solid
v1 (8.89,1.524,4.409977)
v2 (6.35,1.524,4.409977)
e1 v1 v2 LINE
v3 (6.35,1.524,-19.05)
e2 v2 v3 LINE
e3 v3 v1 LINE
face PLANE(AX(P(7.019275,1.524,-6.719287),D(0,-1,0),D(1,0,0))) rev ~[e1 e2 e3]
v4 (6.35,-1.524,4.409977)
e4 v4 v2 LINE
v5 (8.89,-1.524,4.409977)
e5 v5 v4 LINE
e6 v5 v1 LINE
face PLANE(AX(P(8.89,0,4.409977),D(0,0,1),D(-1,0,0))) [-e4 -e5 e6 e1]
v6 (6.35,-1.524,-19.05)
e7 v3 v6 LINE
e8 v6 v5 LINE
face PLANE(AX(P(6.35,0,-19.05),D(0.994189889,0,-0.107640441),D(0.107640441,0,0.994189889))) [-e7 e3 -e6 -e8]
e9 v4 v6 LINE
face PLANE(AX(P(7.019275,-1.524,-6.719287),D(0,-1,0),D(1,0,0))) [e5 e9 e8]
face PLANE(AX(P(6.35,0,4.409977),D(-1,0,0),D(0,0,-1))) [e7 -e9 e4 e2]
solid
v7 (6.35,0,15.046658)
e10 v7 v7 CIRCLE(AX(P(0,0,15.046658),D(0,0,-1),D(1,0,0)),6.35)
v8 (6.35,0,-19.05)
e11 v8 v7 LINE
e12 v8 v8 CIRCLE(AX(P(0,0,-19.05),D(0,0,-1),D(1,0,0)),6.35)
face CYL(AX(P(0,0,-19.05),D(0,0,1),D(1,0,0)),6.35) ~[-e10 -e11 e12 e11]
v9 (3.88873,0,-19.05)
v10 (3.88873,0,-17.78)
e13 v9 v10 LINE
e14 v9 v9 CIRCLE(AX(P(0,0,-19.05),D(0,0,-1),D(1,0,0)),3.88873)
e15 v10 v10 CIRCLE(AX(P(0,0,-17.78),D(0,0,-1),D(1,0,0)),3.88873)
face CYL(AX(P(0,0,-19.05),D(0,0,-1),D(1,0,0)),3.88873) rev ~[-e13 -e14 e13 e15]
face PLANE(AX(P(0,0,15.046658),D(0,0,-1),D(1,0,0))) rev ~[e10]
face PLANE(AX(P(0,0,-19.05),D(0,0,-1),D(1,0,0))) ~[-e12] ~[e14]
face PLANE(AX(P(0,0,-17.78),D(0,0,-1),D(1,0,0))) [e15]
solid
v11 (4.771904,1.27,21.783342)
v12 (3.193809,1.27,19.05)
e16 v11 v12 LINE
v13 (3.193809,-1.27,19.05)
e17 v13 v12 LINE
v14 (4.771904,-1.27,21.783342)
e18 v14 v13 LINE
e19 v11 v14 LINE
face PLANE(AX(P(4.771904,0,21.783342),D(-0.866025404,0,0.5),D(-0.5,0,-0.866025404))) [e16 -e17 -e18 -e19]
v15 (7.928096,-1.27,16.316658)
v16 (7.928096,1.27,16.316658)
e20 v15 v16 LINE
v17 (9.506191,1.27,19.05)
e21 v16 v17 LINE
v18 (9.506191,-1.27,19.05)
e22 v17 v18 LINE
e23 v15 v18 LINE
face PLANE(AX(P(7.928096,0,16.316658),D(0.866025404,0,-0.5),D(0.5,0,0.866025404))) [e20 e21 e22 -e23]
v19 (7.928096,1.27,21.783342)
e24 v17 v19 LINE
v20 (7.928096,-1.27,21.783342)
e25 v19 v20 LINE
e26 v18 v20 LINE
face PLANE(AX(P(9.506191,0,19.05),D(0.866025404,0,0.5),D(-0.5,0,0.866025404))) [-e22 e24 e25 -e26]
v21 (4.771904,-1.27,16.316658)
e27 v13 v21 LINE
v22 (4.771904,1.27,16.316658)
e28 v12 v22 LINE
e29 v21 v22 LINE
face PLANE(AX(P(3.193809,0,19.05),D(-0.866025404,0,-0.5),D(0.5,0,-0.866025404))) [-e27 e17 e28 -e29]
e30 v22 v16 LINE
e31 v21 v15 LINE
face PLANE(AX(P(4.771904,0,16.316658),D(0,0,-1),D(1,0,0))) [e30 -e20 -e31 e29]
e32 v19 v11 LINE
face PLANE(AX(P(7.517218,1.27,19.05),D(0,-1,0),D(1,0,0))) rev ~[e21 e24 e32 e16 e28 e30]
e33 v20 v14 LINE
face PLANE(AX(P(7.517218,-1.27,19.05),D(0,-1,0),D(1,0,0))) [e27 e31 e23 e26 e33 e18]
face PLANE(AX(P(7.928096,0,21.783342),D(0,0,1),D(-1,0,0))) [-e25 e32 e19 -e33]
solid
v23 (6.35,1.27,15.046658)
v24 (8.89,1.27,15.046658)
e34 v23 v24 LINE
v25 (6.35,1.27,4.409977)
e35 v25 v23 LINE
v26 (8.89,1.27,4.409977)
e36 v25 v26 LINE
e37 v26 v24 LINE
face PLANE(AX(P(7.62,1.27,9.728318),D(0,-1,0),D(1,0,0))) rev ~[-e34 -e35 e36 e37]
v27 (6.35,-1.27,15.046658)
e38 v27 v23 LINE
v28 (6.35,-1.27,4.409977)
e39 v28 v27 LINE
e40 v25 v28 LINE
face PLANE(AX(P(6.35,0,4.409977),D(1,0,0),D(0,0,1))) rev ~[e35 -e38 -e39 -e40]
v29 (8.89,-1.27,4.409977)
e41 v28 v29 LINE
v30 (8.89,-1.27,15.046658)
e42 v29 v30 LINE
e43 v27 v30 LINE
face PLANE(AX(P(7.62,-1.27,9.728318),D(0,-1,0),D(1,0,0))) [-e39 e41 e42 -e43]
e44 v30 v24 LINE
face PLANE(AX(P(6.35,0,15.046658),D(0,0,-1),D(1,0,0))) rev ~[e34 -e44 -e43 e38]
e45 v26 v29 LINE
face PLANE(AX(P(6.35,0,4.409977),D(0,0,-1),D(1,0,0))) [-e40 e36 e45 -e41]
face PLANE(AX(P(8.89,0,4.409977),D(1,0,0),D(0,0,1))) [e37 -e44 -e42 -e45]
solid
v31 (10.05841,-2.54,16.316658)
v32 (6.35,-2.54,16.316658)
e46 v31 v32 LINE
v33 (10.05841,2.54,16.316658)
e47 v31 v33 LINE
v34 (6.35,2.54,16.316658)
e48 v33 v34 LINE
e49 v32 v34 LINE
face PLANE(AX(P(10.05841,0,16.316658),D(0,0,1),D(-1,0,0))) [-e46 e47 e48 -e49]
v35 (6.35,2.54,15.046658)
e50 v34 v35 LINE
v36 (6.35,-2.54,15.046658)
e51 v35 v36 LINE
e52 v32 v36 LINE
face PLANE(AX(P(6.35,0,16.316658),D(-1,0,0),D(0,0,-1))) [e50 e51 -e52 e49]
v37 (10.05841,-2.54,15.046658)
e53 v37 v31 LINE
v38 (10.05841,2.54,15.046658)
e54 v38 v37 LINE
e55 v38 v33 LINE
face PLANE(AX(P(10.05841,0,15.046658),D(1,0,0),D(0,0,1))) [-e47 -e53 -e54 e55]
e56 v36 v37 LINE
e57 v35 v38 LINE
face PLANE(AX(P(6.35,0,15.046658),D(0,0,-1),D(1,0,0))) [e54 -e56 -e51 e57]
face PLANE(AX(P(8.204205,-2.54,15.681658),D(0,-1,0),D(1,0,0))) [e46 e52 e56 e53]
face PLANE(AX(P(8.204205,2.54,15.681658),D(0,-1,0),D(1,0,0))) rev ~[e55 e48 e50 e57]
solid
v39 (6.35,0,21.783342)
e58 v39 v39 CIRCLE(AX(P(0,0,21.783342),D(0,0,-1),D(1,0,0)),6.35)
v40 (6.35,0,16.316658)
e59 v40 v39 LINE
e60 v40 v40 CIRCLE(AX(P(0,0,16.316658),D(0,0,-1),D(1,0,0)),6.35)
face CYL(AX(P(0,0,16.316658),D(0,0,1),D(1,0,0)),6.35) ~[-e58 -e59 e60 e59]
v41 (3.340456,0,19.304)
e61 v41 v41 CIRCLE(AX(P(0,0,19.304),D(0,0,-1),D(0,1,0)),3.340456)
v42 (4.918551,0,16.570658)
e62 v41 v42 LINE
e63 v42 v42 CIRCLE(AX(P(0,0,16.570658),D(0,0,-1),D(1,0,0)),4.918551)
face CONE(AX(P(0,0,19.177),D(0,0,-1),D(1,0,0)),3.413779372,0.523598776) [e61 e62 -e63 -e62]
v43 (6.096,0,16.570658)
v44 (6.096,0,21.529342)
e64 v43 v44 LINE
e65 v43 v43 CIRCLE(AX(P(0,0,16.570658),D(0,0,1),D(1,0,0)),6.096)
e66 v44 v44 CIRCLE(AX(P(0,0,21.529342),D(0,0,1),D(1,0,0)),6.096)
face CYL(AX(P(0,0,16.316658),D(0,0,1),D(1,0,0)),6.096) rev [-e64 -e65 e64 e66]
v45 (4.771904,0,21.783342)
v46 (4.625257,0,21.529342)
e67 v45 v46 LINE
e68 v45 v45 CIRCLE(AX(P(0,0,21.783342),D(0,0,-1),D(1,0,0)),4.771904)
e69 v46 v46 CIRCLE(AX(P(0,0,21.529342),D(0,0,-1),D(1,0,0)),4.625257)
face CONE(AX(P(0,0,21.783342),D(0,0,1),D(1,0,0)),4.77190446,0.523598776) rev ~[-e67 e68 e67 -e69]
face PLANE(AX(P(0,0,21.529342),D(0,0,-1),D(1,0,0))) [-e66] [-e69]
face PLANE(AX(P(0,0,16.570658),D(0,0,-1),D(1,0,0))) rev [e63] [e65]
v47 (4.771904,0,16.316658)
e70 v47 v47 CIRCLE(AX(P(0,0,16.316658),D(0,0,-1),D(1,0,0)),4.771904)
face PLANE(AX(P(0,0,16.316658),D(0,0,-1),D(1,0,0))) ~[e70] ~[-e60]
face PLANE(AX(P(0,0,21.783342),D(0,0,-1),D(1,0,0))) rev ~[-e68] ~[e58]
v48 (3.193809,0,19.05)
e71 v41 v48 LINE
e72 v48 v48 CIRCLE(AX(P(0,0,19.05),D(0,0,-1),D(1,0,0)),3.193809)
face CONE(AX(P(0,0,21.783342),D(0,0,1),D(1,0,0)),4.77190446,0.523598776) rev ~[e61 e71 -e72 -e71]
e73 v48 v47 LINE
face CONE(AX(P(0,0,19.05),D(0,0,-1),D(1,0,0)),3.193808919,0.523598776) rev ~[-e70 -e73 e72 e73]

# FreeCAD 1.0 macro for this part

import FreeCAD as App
import Part
import Sketcher

V = App.Vector
Q = App.Units.Quantity


def faces_at(feature, points):
    """Names of the faces that lie closest to the given points."""
    faces = feature.Shape.Faces
    near = lambda p: min(range(len(faces)), key=lambda i: faces[i].distToShape(Part.Vertex(*p))[0])
    return sorted({f"Face{near(p) + 1}" for p in points})

doc = App.newDocument("Part")
params = doc.addObject("Spreadsheet::Sheet", "Params")
for row, (alias, value) in enumerate([
    ("sketch1_width", "0.25 in"),
    ("revolution_angle", "360 deg"),
    ("pocket1_length", "0.05 in"),
    ("revolution2_angle", "360 deg"),
    ("thickness_wall", "0.01 in"),
    ("sketch4_width", "0.1 in"),
    ("pad1_length", "0.12 in"),
    ("sketch5_width", "0.1 in"),
    ("pad2_length", "0.1 in"),
    ("sketch6_height", "0.05 in"),
    ("pad3_length", "0.2 in"),
    ("pad4_length", "0.1 in"),
], start=1):
    params.set(f"A{row}", alias)
    params.set(f"B{row}", "=" + value)
    params.setAlias(f"B{row}", alias)

body = doc.addObject("PartDesign::Body", "Body")

# Sketch on XZ plane
sketch1 = body.newObject("Sketcher::SketchObject", "Sketch")
sketch1.AttachmentSupport = (doc.getObject("XZ_Plane"), [""])
sketch1.MapMode = "FlatFace"
sketch1.addGeometry([
    Part.LineSegment(V(0, -19, 0), V(6, -19, 0)),
    Part.LineSegment(V(6, -19, 0), V(6, 15, 0)),
    Part.LineSegment(V(6, 15, 0), V(0, 15, 0)),
    Part.LineSegment(V(0, 15, 0), V(0, -19, 0)),
], False)
sketch1.addConstraint([
    Sketcher.Constraint("Coincident", 0, 2, 1, 1),
    Sketcher.Constraint("Coincident", 1, 2, 2, 1),
    Sketcher.Constraint("Coincident", 2, 2, 3, 1),
    Sketcher.Constraint("Coincident", 3, 2, 0, 1),
    Sketcher.Constraint("Horizontal", 0),
    Sketcher.Constraint("Vertical", 1),
    Sketcher.Constraint("Horizontal", 2),
    Sketcher.Constraint("Vertical", 3),
    Sketcher.Constraint("PointOnObject", 2, 2, -2),
    Sketcher.Constraint("DistanceX", 0, 1, 0, 2, Q("0.25 in")),
    Sketcher.Constraint("DistanceY", 0, 2, -1, 1, Q("0.75 in")),
    Sketcher.Constraint("DistanceY", 1, 1, 1, 2, 34.096658),
])
sketch1.setExpression("Constraints[9]", "Params.sketch1_width")
revolution = body.newObject("PartDesign::Revolution", "Revolution")
revolution.Profile = sketch1
revolution.ReferenceAxis = (sketch1, ["V_Axis"])
revolution.setExpression("Angle", "Params.revolution_angle")

# Sketch on XY plane
sketch2 = body.newObject("Sketcher::SketchObject", "Sketch001")
sketch2.AttachmentSupport = (doc.getObject("XY_Plane"), [""])
sketch2.MapMode = "FlatFace"
sketch2.AttachmentOffset = App.Placement(V(0, 0, -0.75 * 25.4), App.Rotation())
sketch2.addGeometry(Part.Circle(V(0, 0, 0), V(0, 0, 1), 3.9), False)
sketch2.addConstraint([
    Sketcher.Constraint("Coincident", 0, 3, -1, 1),
    Sketcher.Constraint("Diameter", 0, 7.777459),
])
pocket1 = body.newObject("PartDesign::Pocket", "Pocket")
pocket1.Profile = sketch2
pocket1.setExpression("Length", "Params.pocket1_length")
pocket1.Reversed = True
body2 = doc.addObject("PartDesign::Body", "Body001")

# Sketch on XZ plane
sketch3 = body2.newObject("Sketcher::SketchObject", "Sketch002")
sketch3.AttachmentSupport = (doc.getObject("XZ_Plane001"), [""])
sketch3.MapMode = "FlatFace"
sketch3.addGeometry([
    Part.LineSegment(V(4.8, 16.3, 0), V(6.3, 16.3, 0)),  # 0
    Part.LineSegment(V(6.3, 16.3, 0), V(6.3, 21.8, 0)),  # 1
    Part.LineSegment(V(6.3, 21.8, 0), V(4.8, 21.8, 0)),  # 2
    Part.LineSegment(V(4.8, 21.8, 0), V(3.2, 19.1, 0)),  # 3
    Part.LineSegment(V(3.2, 19.1, 0), V(4.8, 16.3, 0)),  # 4
], False)
sketch3.addConstraint([
    Sketcher.Constraint("Coincident", 0, 2, 1, 1),
    Sketcher.Constraint("Coincident", 1, 2, 2, 1),
    Sketcher.Constraint("Coincident", 2, 2, 3, 1),
    Sketcher.Constraint("Coincident", 3, 2, 4, 1),
    Sketcher.Constraint("Coincident", 4, 2, 0, 1),
    Sketcher.Constraint("Horizontal", 0),
    Sketcher.Constraint("Vertical", 1),
    Sketcher.Constraint("Horizontal", 2),
    Sketcher.Constraint("Vertical", 2, 2, 4, 2),
    Sketcher.Constraint("Equal", 3, 4),
    Sketcher.Constraint("Angle", 3, Q("-120 deg")),
    Sketcher.Constraint("DistanceX", -1, 1, 0, 2, Q("0.25 in")),
    Sketcher.Constraint("DistanceY", -1, 1, 3, 2, Q("0.75 in")),
    Sketcher.Constraint("Distance", 3, 3.156191),
    Sketcher.Constraint("DistanceX", 0, 1, 0, 2, 1.578096),
])
revolution2 = body2.newObject("PartDesign::Revolution", "Revolution001")
revolution2.Profile = sketch3
revolution2.ReferenceAxis = (sketch3, ["V_Axis"])
revolution2.setExpression("Angle", "Params.revolution2_angle")
doc.recompute()

thickness = body2.newObject("PartDesign::Thickness", "Thickness")
thickness.Base = (revolution2, faces_at(revolution2, [(-3.983, 0, 20.417)]))
thickness.setExpression("Value", "Params.thickness_wall")
thickness.Reversed = True
thickness.Join = "Arc"
body3 = doc.addObject("PartDesign::Body", "Body002")

# Sketch on XZ plane
sketch4 = body3.newObject("Sketcher::SketchObject", "Sketch003")
sketch4.AttachmentSupport = (doc.getObject("XZ_Plane002"), [""])
sketch4.MapMode = "FlatFace"
sketch4.addGeometry([
    Part.LineSegment(V(6.3, 4.4, 0), V(6.3, -19.1, 0)),
    Part.LineSegment(V(6.3, -19.1, 0), V(8.9, 4.4, 0)),
    Part.LineSegment(V(8.9, 4.4, 0), V(6.3, 4.4, 0)),
], False)
sketch4.addConstraint([
    Sketcher.Constraint("Coincident", 0, 2, 1, 1),
    Sketcher.Constraint("Coincident", 1, 2, 2, 1),
    Sketcher.Constraint("Coincident", 2, 2, 0, 1),
    Sketcher.Constraint("Vertical", 0),
    Sketcher.Constraint("Horizontal", 2),
    Sketcher.Constraint("DistanceX", 2, 2, 2, 1, Q("0.1 in")),
    Sketcher.Constraint("DistanceX", -1, 1, 0, 2, Q("0.25 in")),
    Sketcher.Constraint("DistanceY", 0, 2, -1, 1, Q("0.75 in")),
    Sketcher.Constraint("Distance", 1, 23.597079),
])
sketch4.setExpression("Constraints[5]", "Params.sketch4_width")
pad1 = body3.newObject("PartDesign::Pad", "Pad")
pad1.Profile = sketch4
pad1.setExpression("Length", "Params.pad1_length")
pad1.Midplane = True
body4 = doc.addObject("PartDesign::Body", "Body003")

# Sketch on XZ plane
sketch5 = body4.newObject("Sketcher::SketchObject", "Sketch004")
sketch5.AttachmentSupport = (doc.getObject("XZ_Plane003"), [""])
sketch5.MapMode = "FlatFace"
sketch5.addGeometry([
    Part.LineSegment(V(6.3, 15, 0), V(6.3, 4.4, 0)),
    Part.LineSegment(V(6.3, 4.4, 0), V(8.9, 4.4, 0)),
    Part.LineSegment(V(8.9, 4.4, 0), V(8.9, 15, 0)),
    Part.LineSegment(V(8.9, 15, 0), V(6.3, 15, 0)),
], False)
sketch5.addConstraint([
    Sketcher.Constraint("Coincident", 0, 2, 1, 1),
    Sketcher.Constraint("Coincident", 1, 2, 2, 1),
    Sketcher.Constraint("Coincident", 2, 2, 3, 1),
    Sketcher.Constraint("Coincident", 3, 2, 0, 1),
    Sketcher.Constraint("Vertical", 0),
    Sketcher.Constraint("Horizontal", 1),
    Sketcher.Constraint("Vertical", 2),
    Sketcher.Constraint("Horizontal", 3),
    Sketcher.Constraint("DistanceX", 1, 1, 1, 2, Q("0.1 in")),
    Sketcher.Constraint("DistanceX", -1, 1, 0, 2, Q("0.25 in")),
    Sketcher.Constraint("DistanceY", 0, 2, 0, 1, 10.636681),
    Sketcher.Constraint("DistanceY", -1, 1, 2, 2, 15.046658),
])
sketch5.setExpression("Constraints[8]", "Params.sketch5_width")
pad2 = body4.newObject("PartDesign::Pad", "Pad001")
pad2.Profile = sketch5
pad2.setExpression("Length", "Params.pad2_length")
pad2.Midplane = True
body5 = doc.addObject("PartDesign::Body", "Body004")

# Sketch on XZ plane
sketch6 = body5.newObject("Sketcher::SketchObject", "Sketch005")
sketch6.AttachmentSupport = (doc.getObject("XZ_Plane004"), [""])
sketch6.MapMode = "FlatFace"
sketch6.addGeometry([
    Part.LineSegment(V(6.3, 16.3, 0), V(6.3, 15, 0)),
    Part.LineSegment(V(6.3, 15, 0), V(10.1, 15, 0)),
    Part.LineSegment(V(10.1, 15, 0), V(10.1, 16.3, 0)),
    Part.LineSegment(V(10.1, 16.3, 0), V(6.3, 16.3, 0)),
], False)
sketch6.addConstraint([
    Sketcher.Constraint("Coincident", 0, 2, 1, 1),
    Sketcher.Constraint("Coincident", 1, 2, 2, 1),
    Sketcher.Constraint("Coincident", 2, 2, 3, 1),
    Sketcher.Constraint("Coincident", 3, 2, 0, 1),
    Sketcher.Constraint("Vertical", 0),
    Sketcher.Constraint("Horizontal", 1),
    Sketcher.Constraint("Vertical", 2),
    Sketcher.Constraint("Horizontal", 3),
    Sketcher.Constraint("DistanceY", 0, 2, 0, 1, Q("0.05 in")),
    Sketcher.Constraint("DistanceX", -1, 1, 0, 2, Q("0.25 in")),
    Sketcher.Constraint("DistanceX", 1, 1, 1, 2, 3.70841),
    Sketcher.Constraint("DistanceY", -1, 1, 0, 2, 15.046658),
])
sketch6.setExpression("Constraints[8]", "Params.sketch6_height")
pad3 = body5.newObject("PartDesign::Pad", "Pad002")
pad3.Profile = sketch6
pad3.setExpression("Length", "Params.pad3_length")
pad3.Midplane = True
body6 = doc.addObject("PartDesign::Body", "Body005")

# Sketch on XZ plane
sketch7 = body6.newObject("Sketcher::SketchObject", "Sketch006")
sketch7.AttachmentSupport = (doc.getObject("XZ_Plane005"), [""])
sketch7.MapMode = "FlatFace"
sketch7.addGeometry([
    Part.LineSegment(V(7.9, 16.3, 0), V(9.5, 19.1, 0)),  # 0
    Part.LineSegment(V(9.5, 19.1, 0), V(7.9, 21.8, 0)),  # 1
    Part.LineSegment(V(7.9, 21.8, 0), V(4.8, 21.8, 0)),  # 2
    Part.LineSegment(V(4.8, 21.8, 0), V(3.2, 19.1, 0)),  # 3
    Part.LineSegment(V(3.2, 19.1, 0), V(4.8, 16.3, 0)),  # 4
    Part.LineSegment(V(4.8, 16.3, 0), V(7.9, 16.3, 0)),  # 5
], False)
sketch7.addConstraint([
    Sketcher.Constraint("Coincident", 0, 2, 1, 1),
    Sketcher.Constraint("Coincident", 1, 2, 2, 1),
    Sketcher.Constraint("Coincident", 2, 2, 3, 1),
    Sketcher.Constraint("Coincident", 3, 2, 4, 1),
    Sketcher.Constraint("Coincident", 4, 2, 5, 1),
    Sketcher.Constraint("Coincident", 5, 2, 0, 1),
    Sketcher.Constraint("Horizontal", 2),
    Sketcher.Constraint("Horizontal", 5),
    Sketcher.Constraint("Parallel", 0, 3),
    Sketcher.Constraint("Parallel", 1, 4),
    Sketcher.Constraint("Horizontal", 0, 2, 3, 2),
    Sketcher.Constraint("Vertical", 2, 2, 4, 2),
    Sketcher.Constraint("Vertical", 1, 2, 5, 2),
    Sketcher.Constraint("Angle", 0, Q("60 deg")),
    Sketcher.Constraint("DistanceY", -1, 1, 0, 2, Q("0.75 in")),
    Sketcher.Constraint("DistanceX", 2, 2, 2, 1, 3.156191),
    Sketcher.Constraint("Distance", 0, 3.156191),
    Sketcher.Constraint("DistanceX", -1, 1, 0, 2, 9.506191),
])
pad4 = body6.newObject("PartDesign::Pad", "Pad003")
pad4.Profile = sketch7
pad4.setExpression("Length", "Params.pad4_length")
pad4.Midplane = True

doc.recompute()
